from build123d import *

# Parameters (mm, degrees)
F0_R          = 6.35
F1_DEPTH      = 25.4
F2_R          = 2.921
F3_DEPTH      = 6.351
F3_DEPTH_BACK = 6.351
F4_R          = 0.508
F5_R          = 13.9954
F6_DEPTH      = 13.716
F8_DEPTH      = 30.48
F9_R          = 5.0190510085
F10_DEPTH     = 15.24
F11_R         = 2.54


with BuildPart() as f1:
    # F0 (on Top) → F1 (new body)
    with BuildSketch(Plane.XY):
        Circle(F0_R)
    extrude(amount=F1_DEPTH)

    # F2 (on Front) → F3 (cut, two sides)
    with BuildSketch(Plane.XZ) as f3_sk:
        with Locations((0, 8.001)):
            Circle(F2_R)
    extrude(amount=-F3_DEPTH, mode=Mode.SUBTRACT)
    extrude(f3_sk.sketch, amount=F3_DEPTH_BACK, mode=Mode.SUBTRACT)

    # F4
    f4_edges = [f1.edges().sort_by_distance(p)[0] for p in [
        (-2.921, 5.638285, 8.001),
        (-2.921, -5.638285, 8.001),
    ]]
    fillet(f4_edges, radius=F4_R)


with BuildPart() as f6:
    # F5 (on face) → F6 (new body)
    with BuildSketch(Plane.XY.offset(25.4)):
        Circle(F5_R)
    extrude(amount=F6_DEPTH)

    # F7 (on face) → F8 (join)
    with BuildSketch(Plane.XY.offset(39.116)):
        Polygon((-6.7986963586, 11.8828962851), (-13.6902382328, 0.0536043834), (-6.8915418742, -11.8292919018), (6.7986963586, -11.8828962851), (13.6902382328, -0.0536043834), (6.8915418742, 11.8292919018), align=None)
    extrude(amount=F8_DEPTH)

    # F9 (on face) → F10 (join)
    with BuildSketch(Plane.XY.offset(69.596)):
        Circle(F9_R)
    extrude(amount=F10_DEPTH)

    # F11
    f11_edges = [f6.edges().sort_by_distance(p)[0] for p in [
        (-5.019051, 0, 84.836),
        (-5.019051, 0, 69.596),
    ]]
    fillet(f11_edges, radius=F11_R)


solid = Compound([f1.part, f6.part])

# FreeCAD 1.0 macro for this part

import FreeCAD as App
import Part
import Sketcher
Q = App.Units.Quantity


def edges_at(feature, points):
    """Names of the edges that pass closest to the given points."""
    edges = feature.Shape.Edges
    near = lambda p: min(range(len(edges)), key=lambda i: edges[i].distToShape(Part.Vertex(*p))[0])
    return sorted({f"Edge{near(p) + 1}" for p in points})

doc = App.newDocument("Part")
body = doc.addObject("PartDesign::Body", "Body")

# Sketch on XY plane
sketch1 = body.newObject("Sketcher::SketchObject", "Sketch")
sketch1.AttachmentSupport = (doc.getObject("XY_Plane"), [""])
sketch1.MapMode = "FlatFace"
sketch1.addGeometry(Part.Circle(App.Vector(0, 0, 0), App.Vector(0, 0, 1), 6), False)
sketch1.addConstraint(Sketcher.Constraint("Coincident", 0, 3, -1, 1))
sketch1.addConstraint(Sketcher.Constraint("Diameter", 0, Q("0.5 in")))
pad1 = body.newObject("PartDesign::Pad", "Pad")
pad1.Profile = sketch1
pad1.Length = Q("1 in")

# Sketch on XZ plane
sketch2 = body.newObject("Sketcher::SketchObject", "Sketch001")
sketch2.AttachmentSupport = (doc.getObject("XZ_Plane"), [""])
sketch2.MapMode = "FlatFace"
sketch2.addGeometry(Part.Circle(App.Vector(0, 8, 0), App.Vector(0, 0, 1), 2.9), False)
sketch2.addConstraint(Sketcher.Constraint("PointOnObject", 0, 3, -2))
sketch2.addConstraint(Sketcher.Constraint("Diameter", 0, Q("0.23 in")))
sketch2.addConstraint(Sketcher.Constraint("DistanceY", -1, 1, 0, 3, Q("0.315 in")))
pocket1 = body.newObject("PartDesign::Pocket", "Pocket")
pocket1.Profile = sketch2
pocket1.Type = "ThroughAll"
pocket1.Midplane = True
doc.recompute()

fillet = body.newObject("PartDesign::Fillet", "Fillet")
fillet.Base = (pocket1, edges_at(pocket1, [(-2.921, 5.638, 8.001), (-2.921, -5.638, 8.001)]))
fillet.Radius = Q("0.02 in")
body2 = doc.addObject("PartDesign::Body", "Body001")

# Sketch on XY plane
sketch3 = body2.newObject("Sketcher::SketchObject", "Sketch002")
sketch3.AttachmentSupport = (doc.getObject("XY_Plane001"), [""])
sketch3.MapMode = "FlatFace"
sketch3.AttachmentOffset = App.Placement(App.Vector(0, 0, 1 * 25.4), App.Rotation())
sketch3.addGeometry(Part.Circle(App.Vector(0, 0, 0), App.Vector(0, 0, 1), 14), False)
sketch3.addConstraint(Sketcher.Constraint("Coincident", 0, 3, -1, 1))
sketch3.addConstraint(Sketcher.Constraint("Diameter", 0, Q("1.102 in")))
pad2 = body2.newObject("PartDesign::Pad", "Pad001")
pad2.Profile = sketch3
pad2.Length = Q("0.54 in")

# Sketch on XY plane
sketch4 = body2.newObject("Sketcher::SketchObject", "Sketch003")
sketch4.AttachmentSupport = (doc.getObject("XY_Plane001"), [""])
sketch4.MapMode = "FlatFace"
sketch4.AttachmentOffset = App.Placement(App.Vector(0, 0, 1.54 * 25.4), App.Rotation())
sketch4.addGeometry(Part.LineSegment(App.Vector(-7, 12, 0), App.Vector(-14, 0, 0)), False)
sketch4.addGeometry(Part.LineSegment(App.Vector(-14, 0, 0), App.Vector(-7, -12, 0)), False)
sketch4.addGeometry(Part.LineSegment(App.Vector(-7, -12, 0), App.Vector(7, -12, 0)), False)
sketch4.addGeometry(Part.LineSegment(App.Vector(7, -12, 0), App.Vector(14, 0, 0)), False)
sketch4.addGeometry(Part.LineSegment(App.Vector(14, 0, 0), App.Vector(7, 12, 0)), False)
sketch4.addGeometry(Part.LineSegment(App.Vector(7, 12, 0), App.Vector(-7, 12, 0)), False)
sketch4.addConstraint(Sketcher.Constraint("Coincident", 0, 2, 1, 1))
sketch4.addConstraint(Sketcher.Constraint("Coincident", 1, 2, 2, 1))
sketch4.addConstraint(Sketcher.Constraint("Coincident", 2, 2, 3, 1))
sketch4.addConstraint(Sketcher.Constraint("Coincident", 3, 2, 4, 1))
sketch4.addConstraint(Sketcher.Constraint("Coincident", 4, 2, 5, 1))
sketch4.addConstraint(Sketcher.Constraint("Coincident", 5, 2, 0, 1))
sketch4.addConstraint(Sketcher.Constraint("Symmetric", 0, 2, 3, 2, -1, 1))
sketch4.addConstraint(Sketcher.Constraint("Symmetric", 1, 2, 4, 2, -1, 1))
sketch4.addConstraint(Sketcher.Constraint("Symmetric", 2, 2, 5, 2, -1, 1))
sketch4.addConstraint(Sketcher.Constraint("Equal", 0, 1))
sketch4.addConstraint(Sketcher.Constraint("Equal", 1, 2))
sketch4.addConstraint(Sketcher.Constraint("DistanceY", 2, 2, 0, 2, Q("11.936501 mm")))
sketch4.addConstraint(Sketcher.Constraint("DistanceX", 0, 2, -1, 1, Q("13.690238 mm")))
sketch4.addConstraint(Sketcher.Constraint("DistanceX", 1, 2, -1, 1, Q("6.891542 mm")))
sketch4.addConstraint(Sketcher.Constraint("DistanceY", 1, 2, -1, 1, Q("11.829292 mm")))
pad3 = body2.newObject("PartDesign::Pad", "Pad002")
pad3.Profile = sketch4
pad3.Length = Q("1.2 in")

# Sketch on XY plane
sketch5 = body2.newObject("Sketcher::SketchObject", "Sketch004")
sketch5.AttachmentSupport = (doc.getObject("XY_Plane001"), [""])
sketch5.MapMode = "FlatFace"
sketch5.AttachmentOffset = App.Placement(App.Vector(0, 0, 2.74 * 25.4), App.Rotation())
sketch5.addGeometry(Part.Circle(App.Vector(0, 0, 0), App.Vector(0, 0, 1), 5), False)
sketch5.addConstraint(Sketcher.Constraint("Coincident", 0, 3, -1, 1))
sketch5.addConstraint(Sketcher.Constraint("Diameter", 0, Q("10.038102 mm")))
pad4 = body2.newObject("PartDesign::Pad", "Pad003")
pad4.Profile = sketch5
pad4.Length = Q("0.6 in")
doc.recompute()

fillet2 = body2.newObject("PartDesign::Fillet", "Fillet001")
fillet2.Base = (pad4, edges_at(pad4, [(-5.019, 0, 84.836), (-5.019, 0, 69.596)]))
fillet2.Radius = Q("0.1 in")

doc.recompute()
